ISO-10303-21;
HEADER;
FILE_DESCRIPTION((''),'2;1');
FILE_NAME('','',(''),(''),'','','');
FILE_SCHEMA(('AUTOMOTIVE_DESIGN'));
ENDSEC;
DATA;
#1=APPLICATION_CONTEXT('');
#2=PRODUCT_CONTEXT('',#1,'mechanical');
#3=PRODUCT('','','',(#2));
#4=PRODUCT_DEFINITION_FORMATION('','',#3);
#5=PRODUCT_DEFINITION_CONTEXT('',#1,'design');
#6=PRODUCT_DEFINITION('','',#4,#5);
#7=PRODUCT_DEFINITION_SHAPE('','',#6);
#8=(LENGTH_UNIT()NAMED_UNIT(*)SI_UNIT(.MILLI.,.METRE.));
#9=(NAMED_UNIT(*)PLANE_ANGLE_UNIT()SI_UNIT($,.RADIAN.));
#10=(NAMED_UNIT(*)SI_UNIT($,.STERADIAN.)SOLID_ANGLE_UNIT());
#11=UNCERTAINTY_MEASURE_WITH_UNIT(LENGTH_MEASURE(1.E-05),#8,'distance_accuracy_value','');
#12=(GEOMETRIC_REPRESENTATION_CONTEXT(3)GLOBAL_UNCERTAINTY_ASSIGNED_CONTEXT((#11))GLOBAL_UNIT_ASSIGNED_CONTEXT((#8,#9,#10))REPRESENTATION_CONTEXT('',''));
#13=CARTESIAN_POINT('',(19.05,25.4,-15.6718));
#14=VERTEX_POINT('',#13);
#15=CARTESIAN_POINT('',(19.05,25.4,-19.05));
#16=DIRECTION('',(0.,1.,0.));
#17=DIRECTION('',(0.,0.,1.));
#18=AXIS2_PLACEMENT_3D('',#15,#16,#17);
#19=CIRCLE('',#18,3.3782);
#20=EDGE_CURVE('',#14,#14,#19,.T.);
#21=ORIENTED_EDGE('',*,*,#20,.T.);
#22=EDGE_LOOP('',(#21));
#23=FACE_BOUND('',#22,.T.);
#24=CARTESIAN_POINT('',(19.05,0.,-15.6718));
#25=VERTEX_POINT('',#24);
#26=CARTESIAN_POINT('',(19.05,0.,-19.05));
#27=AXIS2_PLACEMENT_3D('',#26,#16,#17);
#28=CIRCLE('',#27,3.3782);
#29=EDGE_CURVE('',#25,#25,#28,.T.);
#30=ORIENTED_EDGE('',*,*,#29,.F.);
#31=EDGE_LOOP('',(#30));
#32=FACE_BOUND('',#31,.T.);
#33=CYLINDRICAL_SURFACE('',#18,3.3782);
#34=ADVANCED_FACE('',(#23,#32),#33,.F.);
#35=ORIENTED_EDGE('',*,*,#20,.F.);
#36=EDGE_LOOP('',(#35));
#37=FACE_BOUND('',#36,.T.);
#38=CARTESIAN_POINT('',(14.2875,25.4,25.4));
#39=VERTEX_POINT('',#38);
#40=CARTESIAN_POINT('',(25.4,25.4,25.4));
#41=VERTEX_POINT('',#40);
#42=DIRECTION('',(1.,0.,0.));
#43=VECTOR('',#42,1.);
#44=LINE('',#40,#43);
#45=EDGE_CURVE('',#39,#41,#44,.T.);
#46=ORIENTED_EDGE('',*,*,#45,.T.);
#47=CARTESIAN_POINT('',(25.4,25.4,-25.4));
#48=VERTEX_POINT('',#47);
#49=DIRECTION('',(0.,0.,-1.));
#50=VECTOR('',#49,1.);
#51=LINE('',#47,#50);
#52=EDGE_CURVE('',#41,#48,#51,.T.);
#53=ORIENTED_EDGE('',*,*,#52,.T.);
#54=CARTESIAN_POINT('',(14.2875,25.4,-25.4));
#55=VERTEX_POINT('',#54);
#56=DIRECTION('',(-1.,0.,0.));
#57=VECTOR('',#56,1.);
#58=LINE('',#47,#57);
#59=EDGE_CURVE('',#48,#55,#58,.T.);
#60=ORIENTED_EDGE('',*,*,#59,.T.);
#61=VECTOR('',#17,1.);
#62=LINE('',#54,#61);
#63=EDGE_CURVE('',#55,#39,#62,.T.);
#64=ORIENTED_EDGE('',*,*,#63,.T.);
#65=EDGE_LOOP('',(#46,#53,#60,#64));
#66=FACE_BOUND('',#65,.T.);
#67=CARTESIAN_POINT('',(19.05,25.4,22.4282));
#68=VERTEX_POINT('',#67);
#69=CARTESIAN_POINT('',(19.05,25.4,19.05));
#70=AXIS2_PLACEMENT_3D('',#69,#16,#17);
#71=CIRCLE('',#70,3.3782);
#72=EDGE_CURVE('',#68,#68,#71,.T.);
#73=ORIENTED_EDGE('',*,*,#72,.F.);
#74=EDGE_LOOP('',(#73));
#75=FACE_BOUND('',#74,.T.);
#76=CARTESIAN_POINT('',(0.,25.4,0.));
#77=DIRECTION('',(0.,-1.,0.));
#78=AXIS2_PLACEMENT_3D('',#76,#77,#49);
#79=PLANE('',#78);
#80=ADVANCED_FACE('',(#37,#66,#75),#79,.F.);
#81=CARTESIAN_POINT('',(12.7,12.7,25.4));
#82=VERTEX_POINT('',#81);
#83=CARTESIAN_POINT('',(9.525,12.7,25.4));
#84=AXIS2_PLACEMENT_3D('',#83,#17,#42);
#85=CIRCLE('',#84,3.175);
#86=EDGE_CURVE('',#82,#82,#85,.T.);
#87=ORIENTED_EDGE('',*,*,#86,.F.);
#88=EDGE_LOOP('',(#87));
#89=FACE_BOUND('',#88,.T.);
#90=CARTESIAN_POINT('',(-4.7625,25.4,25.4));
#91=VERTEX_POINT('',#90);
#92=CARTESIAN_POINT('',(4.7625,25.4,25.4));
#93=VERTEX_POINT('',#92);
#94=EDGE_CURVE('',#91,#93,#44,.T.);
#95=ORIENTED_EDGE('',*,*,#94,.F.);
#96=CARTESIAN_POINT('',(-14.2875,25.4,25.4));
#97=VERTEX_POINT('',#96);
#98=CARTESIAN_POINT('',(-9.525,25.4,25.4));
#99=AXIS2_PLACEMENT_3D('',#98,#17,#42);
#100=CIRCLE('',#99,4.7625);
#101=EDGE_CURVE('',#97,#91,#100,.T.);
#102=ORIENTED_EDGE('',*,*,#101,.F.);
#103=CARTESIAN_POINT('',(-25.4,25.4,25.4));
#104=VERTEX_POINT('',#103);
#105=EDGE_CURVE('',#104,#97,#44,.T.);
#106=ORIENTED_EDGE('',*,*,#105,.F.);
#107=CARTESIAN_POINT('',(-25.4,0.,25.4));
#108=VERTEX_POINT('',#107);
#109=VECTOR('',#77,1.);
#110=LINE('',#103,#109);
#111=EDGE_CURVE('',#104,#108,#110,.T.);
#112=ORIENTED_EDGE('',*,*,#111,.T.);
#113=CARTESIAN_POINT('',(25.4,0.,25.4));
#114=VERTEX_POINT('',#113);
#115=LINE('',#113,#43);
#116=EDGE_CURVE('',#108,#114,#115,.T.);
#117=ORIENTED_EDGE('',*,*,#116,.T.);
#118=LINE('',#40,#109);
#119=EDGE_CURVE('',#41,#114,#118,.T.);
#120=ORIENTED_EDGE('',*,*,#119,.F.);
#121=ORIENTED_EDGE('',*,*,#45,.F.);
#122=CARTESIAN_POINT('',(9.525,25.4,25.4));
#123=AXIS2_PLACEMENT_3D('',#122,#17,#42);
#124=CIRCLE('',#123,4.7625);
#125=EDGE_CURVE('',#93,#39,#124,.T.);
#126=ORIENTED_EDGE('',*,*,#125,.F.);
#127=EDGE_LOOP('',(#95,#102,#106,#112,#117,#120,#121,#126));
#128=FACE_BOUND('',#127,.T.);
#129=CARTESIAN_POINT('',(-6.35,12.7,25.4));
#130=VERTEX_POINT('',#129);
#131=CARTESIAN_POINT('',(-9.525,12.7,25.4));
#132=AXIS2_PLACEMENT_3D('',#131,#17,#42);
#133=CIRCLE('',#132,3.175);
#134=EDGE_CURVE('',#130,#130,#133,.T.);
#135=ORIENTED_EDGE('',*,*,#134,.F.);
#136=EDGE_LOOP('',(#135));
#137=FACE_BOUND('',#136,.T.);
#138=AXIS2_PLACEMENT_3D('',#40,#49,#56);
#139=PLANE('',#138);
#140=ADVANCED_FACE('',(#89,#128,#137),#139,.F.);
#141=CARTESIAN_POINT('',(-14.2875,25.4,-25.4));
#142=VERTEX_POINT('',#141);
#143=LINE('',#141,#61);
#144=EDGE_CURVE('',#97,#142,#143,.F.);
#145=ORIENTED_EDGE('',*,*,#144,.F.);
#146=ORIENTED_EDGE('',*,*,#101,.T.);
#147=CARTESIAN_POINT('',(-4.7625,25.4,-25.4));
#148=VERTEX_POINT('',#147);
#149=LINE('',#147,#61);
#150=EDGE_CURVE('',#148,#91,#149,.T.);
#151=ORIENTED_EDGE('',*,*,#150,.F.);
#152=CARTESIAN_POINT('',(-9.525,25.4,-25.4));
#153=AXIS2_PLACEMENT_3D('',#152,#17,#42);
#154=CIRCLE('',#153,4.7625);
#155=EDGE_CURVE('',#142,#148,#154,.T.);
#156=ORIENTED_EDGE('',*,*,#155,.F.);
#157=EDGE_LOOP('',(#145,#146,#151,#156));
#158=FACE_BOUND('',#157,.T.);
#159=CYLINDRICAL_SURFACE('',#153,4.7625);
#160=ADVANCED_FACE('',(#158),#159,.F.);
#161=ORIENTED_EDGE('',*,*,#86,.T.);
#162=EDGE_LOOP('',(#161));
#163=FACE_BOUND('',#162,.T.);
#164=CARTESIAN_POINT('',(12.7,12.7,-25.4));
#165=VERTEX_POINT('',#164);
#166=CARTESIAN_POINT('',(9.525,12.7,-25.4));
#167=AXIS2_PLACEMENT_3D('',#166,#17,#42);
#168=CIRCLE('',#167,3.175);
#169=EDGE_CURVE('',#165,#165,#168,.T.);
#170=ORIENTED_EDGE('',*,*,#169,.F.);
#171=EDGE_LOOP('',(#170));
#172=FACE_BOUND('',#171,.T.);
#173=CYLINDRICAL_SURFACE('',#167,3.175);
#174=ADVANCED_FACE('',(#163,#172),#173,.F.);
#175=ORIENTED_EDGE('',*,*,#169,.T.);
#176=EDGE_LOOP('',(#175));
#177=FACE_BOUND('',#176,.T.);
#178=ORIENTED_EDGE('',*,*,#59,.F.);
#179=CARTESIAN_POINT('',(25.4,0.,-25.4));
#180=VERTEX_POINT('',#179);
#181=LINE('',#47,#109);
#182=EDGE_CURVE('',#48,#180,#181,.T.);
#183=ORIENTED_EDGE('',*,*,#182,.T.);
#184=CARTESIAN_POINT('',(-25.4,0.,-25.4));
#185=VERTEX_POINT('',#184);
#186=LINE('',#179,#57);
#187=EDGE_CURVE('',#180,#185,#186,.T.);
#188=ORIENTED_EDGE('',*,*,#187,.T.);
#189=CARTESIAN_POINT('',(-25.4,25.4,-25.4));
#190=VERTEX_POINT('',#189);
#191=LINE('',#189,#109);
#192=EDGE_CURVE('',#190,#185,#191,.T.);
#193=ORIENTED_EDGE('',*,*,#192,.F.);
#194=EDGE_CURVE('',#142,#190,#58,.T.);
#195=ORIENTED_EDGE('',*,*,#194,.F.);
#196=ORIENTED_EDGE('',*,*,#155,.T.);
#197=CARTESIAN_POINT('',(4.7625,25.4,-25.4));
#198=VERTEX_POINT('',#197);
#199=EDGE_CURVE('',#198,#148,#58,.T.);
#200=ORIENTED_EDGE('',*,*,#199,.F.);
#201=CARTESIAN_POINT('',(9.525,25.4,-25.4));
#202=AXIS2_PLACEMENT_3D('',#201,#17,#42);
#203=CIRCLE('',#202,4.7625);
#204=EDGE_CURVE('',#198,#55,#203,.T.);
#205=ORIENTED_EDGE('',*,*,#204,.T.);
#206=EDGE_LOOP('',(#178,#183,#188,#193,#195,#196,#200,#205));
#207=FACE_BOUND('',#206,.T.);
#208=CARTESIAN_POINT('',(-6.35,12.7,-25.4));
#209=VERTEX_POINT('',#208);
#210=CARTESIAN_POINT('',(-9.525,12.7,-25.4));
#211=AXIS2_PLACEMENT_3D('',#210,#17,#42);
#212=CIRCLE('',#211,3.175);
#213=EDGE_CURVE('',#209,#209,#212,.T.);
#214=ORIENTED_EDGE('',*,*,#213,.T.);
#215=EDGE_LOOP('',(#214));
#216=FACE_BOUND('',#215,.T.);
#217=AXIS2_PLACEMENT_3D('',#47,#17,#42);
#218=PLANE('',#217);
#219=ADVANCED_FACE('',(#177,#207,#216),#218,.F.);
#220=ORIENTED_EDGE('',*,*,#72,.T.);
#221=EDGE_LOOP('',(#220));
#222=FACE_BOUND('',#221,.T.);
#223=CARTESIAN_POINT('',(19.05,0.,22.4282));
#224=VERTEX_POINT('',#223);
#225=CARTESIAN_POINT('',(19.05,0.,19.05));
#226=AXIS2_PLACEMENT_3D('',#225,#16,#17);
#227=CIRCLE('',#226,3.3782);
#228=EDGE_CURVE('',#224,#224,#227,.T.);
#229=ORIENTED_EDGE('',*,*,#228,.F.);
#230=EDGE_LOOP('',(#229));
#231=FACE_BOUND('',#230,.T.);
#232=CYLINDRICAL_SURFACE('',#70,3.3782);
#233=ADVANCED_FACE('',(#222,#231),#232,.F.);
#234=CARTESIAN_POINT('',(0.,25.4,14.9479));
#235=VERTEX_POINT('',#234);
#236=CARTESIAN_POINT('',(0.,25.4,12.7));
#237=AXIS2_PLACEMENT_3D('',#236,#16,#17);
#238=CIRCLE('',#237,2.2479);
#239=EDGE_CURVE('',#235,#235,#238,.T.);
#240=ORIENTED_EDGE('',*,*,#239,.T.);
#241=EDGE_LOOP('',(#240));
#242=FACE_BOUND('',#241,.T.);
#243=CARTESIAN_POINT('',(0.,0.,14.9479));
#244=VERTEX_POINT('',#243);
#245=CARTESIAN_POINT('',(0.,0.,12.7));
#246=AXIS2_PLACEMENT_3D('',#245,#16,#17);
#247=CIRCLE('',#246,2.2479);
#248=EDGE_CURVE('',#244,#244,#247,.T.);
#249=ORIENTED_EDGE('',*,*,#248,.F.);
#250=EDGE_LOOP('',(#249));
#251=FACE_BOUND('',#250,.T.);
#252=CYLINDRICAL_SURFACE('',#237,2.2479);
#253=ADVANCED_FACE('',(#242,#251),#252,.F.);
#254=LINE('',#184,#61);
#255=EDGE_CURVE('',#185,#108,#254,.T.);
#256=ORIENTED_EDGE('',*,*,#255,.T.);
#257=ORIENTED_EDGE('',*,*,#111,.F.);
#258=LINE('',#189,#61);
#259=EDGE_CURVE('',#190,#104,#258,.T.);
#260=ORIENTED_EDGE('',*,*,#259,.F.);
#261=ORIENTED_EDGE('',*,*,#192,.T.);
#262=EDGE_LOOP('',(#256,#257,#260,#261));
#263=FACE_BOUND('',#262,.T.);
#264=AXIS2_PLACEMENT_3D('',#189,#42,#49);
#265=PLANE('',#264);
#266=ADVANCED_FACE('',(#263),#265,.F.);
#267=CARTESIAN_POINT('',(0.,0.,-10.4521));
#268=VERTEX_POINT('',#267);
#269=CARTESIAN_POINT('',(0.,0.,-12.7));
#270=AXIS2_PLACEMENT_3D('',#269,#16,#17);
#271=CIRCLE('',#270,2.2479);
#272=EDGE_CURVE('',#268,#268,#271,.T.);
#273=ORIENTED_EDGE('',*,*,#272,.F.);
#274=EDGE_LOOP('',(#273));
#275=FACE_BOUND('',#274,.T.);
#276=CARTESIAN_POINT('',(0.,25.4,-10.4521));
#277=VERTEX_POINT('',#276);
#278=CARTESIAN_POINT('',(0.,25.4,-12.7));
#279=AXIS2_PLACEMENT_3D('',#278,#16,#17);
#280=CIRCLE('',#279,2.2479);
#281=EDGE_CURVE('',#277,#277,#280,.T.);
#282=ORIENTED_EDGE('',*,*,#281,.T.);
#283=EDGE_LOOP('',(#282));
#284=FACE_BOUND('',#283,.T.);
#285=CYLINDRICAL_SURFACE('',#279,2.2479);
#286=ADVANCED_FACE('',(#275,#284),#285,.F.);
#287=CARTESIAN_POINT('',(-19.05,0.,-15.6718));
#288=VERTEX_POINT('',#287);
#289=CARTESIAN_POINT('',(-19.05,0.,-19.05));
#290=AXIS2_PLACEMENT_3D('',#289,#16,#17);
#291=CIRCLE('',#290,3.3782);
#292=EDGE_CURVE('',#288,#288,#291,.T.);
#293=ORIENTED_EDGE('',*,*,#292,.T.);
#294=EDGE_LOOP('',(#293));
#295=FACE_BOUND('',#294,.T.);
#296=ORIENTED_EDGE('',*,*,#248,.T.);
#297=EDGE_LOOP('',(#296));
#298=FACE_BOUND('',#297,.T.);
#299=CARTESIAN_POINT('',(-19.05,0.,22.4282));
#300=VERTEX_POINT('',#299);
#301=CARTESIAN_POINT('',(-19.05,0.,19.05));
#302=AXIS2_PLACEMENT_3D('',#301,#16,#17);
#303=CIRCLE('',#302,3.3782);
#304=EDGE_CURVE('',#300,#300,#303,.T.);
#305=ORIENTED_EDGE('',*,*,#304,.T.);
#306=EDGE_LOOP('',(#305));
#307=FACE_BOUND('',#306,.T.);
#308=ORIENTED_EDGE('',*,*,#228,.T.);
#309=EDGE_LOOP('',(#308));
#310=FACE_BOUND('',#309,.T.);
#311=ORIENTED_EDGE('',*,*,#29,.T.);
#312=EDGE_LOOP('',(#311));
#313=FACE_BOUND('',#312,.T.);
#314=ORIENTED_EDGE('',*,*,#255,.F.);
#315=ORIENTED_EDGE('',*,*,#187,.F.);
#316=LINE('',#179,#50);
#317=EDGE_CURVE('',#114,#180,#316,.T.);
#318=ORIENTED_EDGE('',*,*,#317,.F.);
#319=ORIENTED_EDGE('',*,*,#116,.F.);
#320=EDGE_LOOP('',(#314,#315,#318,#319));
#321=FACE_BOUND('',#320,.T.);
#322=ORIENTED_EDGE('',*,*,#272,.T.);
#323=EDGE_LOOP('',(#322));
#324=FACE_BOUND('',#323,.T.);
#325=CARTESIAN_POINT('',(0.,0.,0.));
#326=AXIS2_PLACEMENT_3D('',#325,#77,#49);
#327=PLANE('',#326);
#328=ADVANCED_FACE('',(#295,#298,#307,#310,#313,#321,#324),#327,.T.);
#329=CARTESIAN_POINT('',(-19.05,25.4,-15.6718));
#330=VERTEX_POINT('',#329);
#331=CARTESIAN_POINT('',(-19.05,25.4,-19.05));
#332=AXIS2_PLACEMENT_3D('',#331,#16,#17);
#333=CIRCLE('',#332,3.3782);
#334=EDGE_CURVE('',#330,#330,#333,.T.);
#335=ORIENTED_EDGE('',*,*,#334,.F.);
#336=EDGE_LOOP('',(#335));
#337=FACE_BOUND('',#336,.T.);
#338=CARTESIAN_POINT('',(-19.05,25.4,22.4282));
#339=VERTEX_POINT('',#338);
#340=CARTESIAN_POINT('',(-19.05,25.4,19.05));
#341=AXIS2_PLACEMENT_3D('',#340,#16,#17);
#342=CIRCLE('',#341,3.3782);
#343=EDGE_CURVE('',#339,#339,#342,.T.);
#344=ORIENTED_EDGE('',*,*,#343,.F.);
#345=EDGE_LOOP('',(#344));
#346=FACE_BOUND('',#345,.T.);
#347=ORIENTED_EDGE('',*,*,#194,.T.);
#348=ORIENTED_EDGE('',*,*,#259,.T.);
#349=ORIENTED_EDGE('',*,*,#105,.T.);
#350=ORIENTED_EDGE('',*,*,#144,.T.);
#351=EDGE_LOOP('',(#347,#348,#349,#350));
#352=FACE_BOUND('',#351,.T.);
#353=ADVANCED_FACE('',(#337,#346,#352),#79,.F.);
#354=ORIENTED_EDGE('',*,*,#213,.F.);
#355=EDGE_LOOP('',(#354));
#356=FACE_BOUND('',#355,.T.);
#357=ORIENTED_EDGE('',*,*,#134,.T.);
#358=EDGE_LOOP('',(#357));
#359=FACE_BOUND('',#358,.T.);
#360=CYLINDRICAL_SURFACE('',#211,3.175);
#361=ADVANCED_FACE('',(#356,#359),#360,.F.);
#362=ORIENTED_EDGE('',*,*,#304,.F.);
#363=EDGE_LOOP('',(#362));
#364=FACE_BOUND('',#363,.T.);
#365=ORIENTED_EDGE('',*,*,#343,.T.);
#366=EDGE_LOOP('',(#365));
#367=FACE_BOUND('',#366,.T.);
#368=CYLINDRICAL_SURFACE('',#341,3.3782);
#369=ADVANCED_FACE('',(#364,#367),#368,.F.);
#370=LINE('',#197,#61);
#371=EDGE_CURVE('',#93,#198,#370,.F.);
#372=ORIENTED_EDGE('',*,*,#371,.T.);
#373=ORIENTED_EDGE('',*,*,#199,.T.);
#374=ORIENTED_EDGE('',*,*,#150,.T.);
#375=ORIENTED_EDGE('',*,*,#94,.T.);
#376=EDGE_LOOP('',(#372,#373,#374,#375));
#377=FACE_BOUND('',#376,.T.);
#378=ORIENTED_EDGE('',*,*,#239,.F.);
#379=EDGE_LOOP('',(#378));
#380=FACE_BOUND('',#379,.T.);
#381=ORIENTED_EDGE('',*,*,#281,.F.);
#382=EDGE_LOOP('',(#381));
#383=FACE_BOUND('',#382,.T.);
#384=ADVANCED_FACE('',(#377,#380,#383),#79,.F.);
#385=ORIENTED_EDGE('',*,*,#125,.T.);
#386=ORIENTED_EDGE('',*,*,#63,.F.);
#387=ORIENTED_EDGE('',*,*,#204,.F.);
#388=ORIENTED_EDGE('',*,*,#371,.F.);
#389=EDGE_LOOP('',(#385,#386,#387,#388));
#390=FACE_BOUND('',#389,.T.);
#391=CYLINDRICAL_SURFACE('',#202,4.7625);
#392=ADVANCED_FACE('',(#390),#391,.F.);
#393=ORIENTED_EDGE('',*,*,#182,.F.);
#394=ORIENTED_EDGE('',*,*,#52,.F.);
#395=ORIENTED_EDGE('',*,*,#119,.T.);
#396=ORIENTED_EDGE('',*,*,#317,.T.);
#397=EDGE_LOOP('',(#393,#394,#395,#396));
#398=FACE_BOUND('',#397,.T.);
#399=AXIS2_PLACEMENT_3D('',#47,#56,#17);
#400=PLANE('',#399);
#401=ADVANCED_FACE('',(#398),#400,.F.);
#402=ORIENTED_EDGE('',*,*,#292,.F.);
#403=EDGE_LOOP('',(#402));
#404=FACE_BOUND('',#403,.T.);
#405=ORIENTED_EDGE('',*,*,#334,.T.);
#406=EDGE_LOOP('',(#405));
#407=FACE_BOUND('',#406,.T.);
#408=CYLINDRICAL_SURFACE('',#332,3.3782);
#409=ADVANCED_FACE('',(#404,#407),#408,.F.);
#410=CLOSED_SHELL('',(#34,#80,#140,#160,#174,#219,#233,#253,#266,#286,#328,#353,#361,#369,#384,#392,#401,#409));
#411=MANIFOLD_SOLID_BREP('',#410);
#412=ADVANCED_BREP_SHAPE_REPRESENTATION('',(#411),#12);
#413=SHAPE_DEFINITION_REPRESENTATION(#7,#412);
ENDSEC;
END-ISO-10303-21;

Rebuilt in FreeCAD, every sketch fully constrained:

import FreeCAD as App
import Part
import Sketcher
from FreeCAD import Vector
Q = App.Units.Quantity

doc = App.newDocument("Part")
params = doc.addObject("Spreadsheet::Sheet", "Params")
for row, (alias, value) in enumerate([
    ("sketch1_width", "2 in"),
    ("pad1_length", "1 in"),
    ("sketch2_diameter", "0.375 in"),
    ("sketch3_diameter", "0.266 in"),
    ("hole_diameter", "0.266 in"),
    ("sketch4_diameter", "0.25 in"),
    ("sketch5_diameter", "0.177 in"),
    ("hole2_diameter", "0.177 in"),
], start=1):
    params.set(f"A{row}", alias)
    params.set(f"B{row}", "=" + value)
    params.setAlias(f"B{row}", alias)

body = doc.addObject("PartDesign::Body", "Body")

# Sketch on XZ plane
sketch1 = body.newObject("Sketcher::SketchObject", "Sketch")
sketch1.AttachmentSupport = (doc.getObject("XZ_Plane"), [""])
sketch1.MapMode = "FlatFace"
sketch1.addGeometry(Part.LineSegment(Vector(-25, -25, 0), Vector(-25, 25, 0)), False)
sketch1.addGeometry(Part.LineSegment(Vector(-25, 25, 0), Vector(25, 25, 0)), False)
sketch1.addGeometry(Part.LineSegment(Vector(25, 25, 0), Vector(25, -25, 0)), False)
sketch1.addGeometry(Part.LineSegment(Vector(25, -25, 0), Vector(-25, -25, 0)), False)
sketch1.addConstraint(Sketcher.Constraint("Coincident", 0, 2, 1, 1))
sketch1.addConstraint(Sketcher.Constraint("Coincident", 1, 2, 2, 1))
sketch1.addConstraint(Sketcher.Constraint("Coincident", 2, 2, 3, 1))
sketch1.addConstraint(Sketcher.Constraint("Coincident", 3, 2, 0, 1))
sketch1.addConstraint(Sketcher.Constraint("Vertical", 0))
sketch1.addConstraint(Sketcher.Constraint("Horizontal", 1))
sketch1.addConstraint(Sketcher.Constraint("Vertical", 2))
sketch1.addConstraint(Sketcher.Constraint("Horizontal", 3))
sketch1.addConstraint(Sketcher.Constraint("Symmetric", 0, 2, 2, 2, -1, 1))
sketch1.addConstraint(Sketcher.Constraint("Equal", 3, 0))
sketch1.addConstraint(Sketcher.Constraint("DistanceX", 1, 1, 1, 2, Q("2 in")))
sketch1.setExpression("Constraints[10]", "Params.sketch1_width")
pad1 = body.newObject("PartDesign::Pad", "Pad")
pad1.Profile = sketch1
pad1.setExpression("Length", "Params.pad1_length")
pad1.Reversed = True

# Sketch on XY plane
sketch2 = body.newObject("Sketcher::SketchObject", "Sketch001")
sketch2.AttachmentSupport = (doc.getObject("XY_Plane"), [""])
sketch2.MapMode = "FlatFace"
sketch2.AttachmentOffset = App.Placement(Vector(0, 0, 1 * 25.4), App.Rotation())
sketch2.addGeometry(Part.Circle(Vector(-9.5, 25.4, 0), Vector(0, 0, 1), 4.8), False)
sketch2.addGeometry(Part.Circle(Vector(9.5, 25.4, 0), Vector(0, 0, 1), 4.8), False)
sketch2.addConstraint(Sketcher.Constraint("Equal", 0, 1))
sketch2.addConstraint(Sketcher.Constraint("Symmetric", 0, 3, 1, 3, -2))
sketch2.addConstraint(Sketcher.Constraint("Diameter", 0, Q("0.375 in")))
sketch2.addConstraint(Sketcher.Constraint("DistanceY", -1, 1, 0, 3, Q("1 in")))
sketch2.addConstraint(Sketcher.Constraint("DistanceX", 0, 3, 1, 3, Q("0.75 in")))
sketch2.setExpression("Constraints[2]", "Params.sketch2_diameter")
pocket1 = body.newObject("PartDesign::Pocket", "Pocket")
pocket1.Profile = sketch2
pocket1.Type = "ThroughAll"

# Sketch on XZ plane
sketch3 = body.newObject("Sketcher::SketchObject", "Sketch002")
sketch3.AttachmentSupport = (doc.getObject("XZ_Plane"), [""])
sketch3.MapMode = "FlatFace"
sketch3.AttachmentOffset = App.Placement(Vector(0, 0, -1 * 25.4), App.Rotation())
sketch3.addGeometry(Part.Circle(Vector(-19.1, -19.1, 0), Vector(0, 0, 1), 3.4), False)
sketch3.addGeometry(Part.Circle(Vector(-19.1, 19.1, 0), Vector(0, 0, 1), 3.4), False)
sketch3.addGeometry(Part.Circle(Vector(19.1, 19.1, 0), Vector(0, 0, 1), 3.4), False)
sketch3.addGeometry(Part.Circle(Vector(19.1, -19.1, 0), Vector(0, 0, 1), 3.4), False)
sketch3.addConstraint(Sketcher.Constraint("Equal", 0, 1))
sketch3.addConstraint(Sketcher.Constraint("Equal", 1, 2))
sketch3.addConstraint(Sketcher.Constraint("Equal", 2, 3))
sketch3.addConstraint(Sketcher.Constraint("Symmetric", 0, 3, 2, 3, -1, 1))
sketch3.addConstraint(Sketcher.Constraint("Symmetric", 1, 3, 3, 3, -1, 1))
sketch3.addConstraint(Sketcher.Constraint("Symmetric", 1, 3, 2, 3, -2))
sketch3.addConstraint(Sketcher.Constraint("Diameter", 0, Q("0.266 in")))
sketch3.addConstraint(Sketcher.Constraint("DistanceY", 0, 3, 1, 3, Q("1.5 in")))
sketch3.addConstraint(Sketcher.Constraint("DistanceX", 1, 3, 2, 3, Q("1.5 in")))
sketch3.setExpression("Constraints[6]", "Params.sketch3_diameter")
doc.recompute()
hole = body.newObject("PartDesign::Hole", "Hole")
hole.Profile = sketch3
hole.ThreadType = "None"
hole.setExpression("Diameter", "Params.hole_diameter")
hole.DepthType = "ThroughAll"
hole.Reversed = True

# Sketch on XY plane
sketch4 = body.newObject("Sketcher::SketchObject", "Sketch003")
sketch4.AttachmentSupport = (doc.getObject("XY_Plane"), [""])
sketch4.MapMode = "FlatFace"
sketch4.AttachmentOffset = App.Placement(Vector(0, 0, 1 * 25.4), App.Rotation())
sketch4.addGeometry(Part.Circle(Vector(-9.5, 12.7, 0), Vector(0, 0, 1), 3.2), False)
sketch4.addGeometry(Part.Circle(Vector(9.5, 12.7, 0), Vector(0, 0, 1), 3.2), False)
sketch4.addConstraint(Sketcher.Constraint("Equal", 0, 1))
sketch4.addConstraint(Sketcher.Constraint("Symmetric", 0, 3, 1, 3, -2))
sketch4.addConstraint(Sketcher.Constraint("Diameter", 0, Q("0.25 in")))
sketch4.addConstraint(Sketcher.Constraint("DistanceY", -1, 1, 0, 3, Q("0.5 in")))
sketch4.addConstraint(Sketcher.Constraint("DistanceX", 0, 3, 1, 3, Q("0.75 in")))
sketch4.setExpression("Constraints[2]", "Params.sketch4_diameter")
pocket2 = body.newObject("PartDesign::Pocket", "Pocket001")
pocket2.Profile = sketch4
pocket2.Type = "ThroughAll"

# Sketch on XZ plane
sketch5 = body.newObject("Sketcher::SketchObject", "Sketch004")
sketch5.AttachmentSupport = (doc.getObject("XZ_Plane"), [""])
sketch5.MapMode = "FlatFace"
sketch5.AttachmentOffset = App.Placement(Vector(0, 0, -1 * 25.4), App.Rotation())
sketch5.addGeometry(Part.Circle(Vector(0, -12.7, 0), Vector(0, 0, 1), 2.2), False)
sketch5.addGeometry(Part.Circle(Vector(0, 12.7, 0), Vector(0, 0, 1), 2.2), False)
sketch5.addConstraint(Sketcher.Constraint("Equal", 0, 1))
sketch5.addConstraint(Sketcher.Constraint("Symmetric", 0, 3, 1, 3, -1, 1))
sketch5.addConstraint(Sketcher.Constraint("PointOnObject", 0, 3, -2))
sketch5.addConstraint(Sketcher.Constraint("Diameter", 0, Q("0.177 in")))
sketch5.addConstraint(Sketcher.Constraint("DistanceY", 0, 3, 1, 3, Q("1 in")))
sketch5.setExpression("Constraints[3]", "Params.sketch5_diameter")
doc.recompute()
hole2 = body.newObject("PartDesign::Hole", "Hole001")
hole2.Profile = sketch5
hole2.ThreadType = "None"
hole2.setExpression("Diameter", "Params.hole2_diameter")
hole2.DepthType = "ThroughAll"
hole2.Reversed = True

doc.recompute()
